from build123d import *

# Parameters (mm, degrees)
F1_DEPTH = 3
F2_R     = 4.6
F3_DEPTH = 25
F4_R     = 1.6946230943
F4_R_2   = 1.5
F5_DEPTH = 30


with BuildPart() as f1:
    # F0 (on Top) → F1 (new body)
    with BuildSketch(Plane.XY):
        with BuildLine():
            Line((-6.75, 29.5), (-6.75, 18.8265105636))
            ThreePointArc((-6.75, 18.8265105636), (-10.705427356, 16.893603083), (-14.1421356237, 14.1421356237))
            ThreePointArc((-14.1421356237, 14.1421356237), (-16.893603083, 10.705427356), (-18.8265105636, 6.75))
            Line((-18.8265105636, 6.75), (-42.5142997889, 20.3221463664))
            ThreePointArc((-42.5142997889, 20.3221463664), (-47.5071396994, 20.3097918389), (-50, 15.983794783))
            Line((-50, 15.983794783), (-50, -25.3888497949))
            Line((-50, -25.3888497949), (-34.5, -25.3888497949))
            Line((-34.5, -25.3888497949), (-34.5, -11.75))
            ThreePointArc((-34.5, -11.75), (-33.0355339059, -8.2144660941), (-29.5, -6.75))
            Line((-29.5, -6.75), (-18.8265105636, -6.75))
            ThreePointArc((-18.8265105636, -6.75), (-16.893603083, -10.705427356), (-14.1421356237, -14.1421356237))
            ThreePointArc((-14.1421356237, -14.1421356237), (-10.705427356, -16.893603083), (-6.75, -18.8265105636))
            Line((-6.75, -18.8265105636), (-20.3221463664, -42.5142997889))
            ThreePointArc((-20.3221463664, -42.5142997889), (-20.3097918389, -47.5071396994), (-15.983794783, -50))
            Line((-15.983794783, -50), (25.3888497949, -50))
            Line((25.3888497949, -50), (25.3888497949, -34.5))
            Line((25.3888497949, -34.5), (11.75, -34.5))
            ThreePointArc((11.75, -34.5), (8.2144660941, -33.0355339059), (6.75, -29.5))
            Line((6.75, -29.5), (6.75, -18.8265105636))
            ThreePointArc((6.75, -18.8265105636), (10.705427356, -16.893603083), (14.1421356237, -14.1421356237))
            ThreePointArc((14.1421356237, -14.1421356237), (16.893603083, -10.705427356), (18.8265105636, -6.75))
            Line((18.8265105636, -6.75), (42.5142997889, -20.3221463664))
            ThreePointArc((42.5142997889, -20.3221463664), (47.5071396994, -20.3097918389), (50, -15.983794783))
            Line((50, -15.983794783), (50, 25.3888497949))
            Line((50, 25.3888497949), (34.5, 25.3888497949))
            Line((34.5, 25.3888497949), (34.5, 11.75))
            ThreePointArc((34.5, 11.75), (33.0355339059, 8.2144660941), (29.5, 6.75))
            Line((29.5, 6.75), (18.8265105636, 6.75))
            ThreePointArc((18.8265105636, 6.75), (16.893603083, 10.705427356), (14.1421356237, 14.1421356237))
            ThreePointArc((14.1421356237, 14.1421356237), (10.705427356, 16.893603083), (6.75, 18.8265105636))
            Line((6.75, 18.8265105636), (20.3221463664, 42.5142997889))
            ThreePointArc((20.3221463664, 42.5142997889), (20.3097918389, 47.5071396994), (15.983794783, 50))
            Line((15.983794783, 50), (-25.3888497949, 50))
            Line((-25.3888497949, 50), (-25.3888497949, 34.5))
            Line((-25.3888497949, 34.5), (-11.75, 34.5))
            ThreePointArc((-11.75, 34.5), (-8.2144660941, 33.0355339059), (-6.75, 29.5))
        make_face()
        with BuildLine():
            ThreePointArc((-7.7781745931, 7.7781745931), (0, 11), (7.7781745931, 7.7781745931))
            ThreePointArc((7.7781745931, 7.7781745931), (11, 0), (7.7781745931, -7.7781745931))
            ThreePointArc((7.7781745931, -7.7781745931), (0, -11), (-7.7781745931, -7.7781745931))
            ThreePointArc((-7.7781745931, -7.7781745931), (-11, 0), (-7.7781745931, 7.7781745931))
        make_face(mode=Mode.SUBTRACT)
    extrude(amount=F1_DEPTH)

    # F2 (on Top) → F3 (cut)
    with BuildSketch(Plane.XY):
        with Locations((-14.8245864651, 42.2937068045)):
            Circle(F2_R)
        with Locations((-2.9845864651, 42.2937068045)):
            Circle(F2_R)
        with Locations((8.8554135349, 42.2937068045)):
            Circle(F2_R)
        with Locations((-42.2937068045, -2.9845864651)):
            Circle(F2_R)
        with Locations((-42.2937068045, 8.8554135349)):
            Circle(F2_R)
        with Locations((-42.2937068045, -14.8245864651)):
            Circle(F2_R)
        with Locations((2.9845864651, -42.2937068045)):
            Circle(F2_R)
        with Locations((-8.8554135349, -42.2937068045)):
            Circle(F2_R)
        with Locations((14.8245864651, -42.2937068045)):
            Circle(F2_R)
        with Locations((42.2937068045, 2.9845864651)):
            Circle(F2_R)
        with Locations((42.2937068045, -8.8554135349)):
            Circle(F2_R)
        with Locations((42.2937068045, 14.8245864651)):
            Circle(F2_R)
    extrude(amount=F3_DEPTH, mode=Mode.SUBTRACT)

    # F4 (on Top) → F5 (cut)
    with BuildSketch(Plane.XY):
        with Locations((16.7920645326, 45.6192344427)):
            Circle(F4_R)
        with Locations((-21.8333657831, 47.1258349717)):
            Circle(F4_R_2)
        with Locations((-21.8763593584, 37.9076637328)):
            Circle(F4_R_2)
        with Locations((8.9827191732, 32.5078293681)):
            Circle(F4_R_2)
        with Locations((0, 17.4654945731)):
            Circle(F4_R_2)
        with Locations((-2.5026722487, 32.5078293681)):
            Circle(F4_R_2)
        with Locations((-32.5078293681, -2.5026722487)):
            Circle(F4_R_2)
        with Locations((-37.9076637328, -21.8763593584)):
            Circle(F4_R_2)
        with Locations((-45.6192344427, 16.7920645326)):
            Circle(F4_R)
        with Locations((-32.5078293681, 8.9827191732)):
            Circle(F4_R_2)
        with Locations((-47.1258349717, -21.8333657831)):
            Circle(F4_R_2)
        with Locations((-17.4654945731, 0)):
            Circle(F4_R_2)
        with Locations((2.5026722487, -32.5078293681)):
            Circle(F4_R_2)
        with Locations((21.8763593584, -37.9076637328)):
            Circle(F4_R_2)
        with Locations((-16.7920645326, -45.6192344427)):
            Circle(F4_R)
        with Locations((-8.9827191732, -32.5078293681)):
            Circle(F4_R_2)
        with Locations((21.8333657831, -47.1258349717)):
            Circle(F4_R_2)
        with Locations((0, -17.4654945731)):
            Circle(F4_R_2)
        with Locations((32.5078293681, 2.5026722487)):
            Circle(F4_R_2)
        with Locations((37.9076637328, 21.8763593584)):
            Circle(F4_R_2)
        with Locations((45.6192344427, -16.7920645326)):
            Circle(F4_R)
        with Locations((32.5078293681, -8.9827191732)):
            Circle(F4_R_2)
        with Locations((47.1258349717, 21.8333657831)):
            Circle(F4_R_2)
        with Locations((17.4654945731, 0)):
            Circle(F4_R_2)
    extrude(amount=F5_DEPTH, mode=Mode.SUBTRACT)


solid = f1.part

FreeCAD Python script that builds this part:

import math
import FreeCAD as App
import Part
import Sketcher
from FreeCAD import Vector
Q = App.Units.Quantity

doc = App.newDocument("Part")
body = doc.addObject("PartDesign::Body", "Body")

# Sketch on XY plane
sketch1 = doc.addObject("Sketcher::SketchObject", "Sketch")
body.addObject(sketch1)
sketch1.AttachmentSupport = (doc.XY_Plane, [""])
sketch1.MapMode = "FlatFace"
sketch1.addGeometry(Part.LineSegment(Vector(-7, 30, 0), Vector(-7, 19, 0)), False)
sketch1.addGeometry(Part.ArcOfCircle(Part.Circle(Vector(0, 0, 0), Vector(0, 0, 1), 20), math.radians(110), math.radians(135)), False)
sketch1.addGeometry(Part.ArcOfCircle(Part.Circle(Vector(0, 0, 0), Vector(0, 0, 1), 20), math.radians(135), math.radians(160)), False)
sketch1.addGeometry(Part.LineSegment(Vector(-19, 7, 0), Vector(-43, 20, 0)), False)
sketch1.addGeometry(Part.ArcOfCircle(Part.Circle(Vector(-45, 16, 0), Vector(0, 0, 1), 5), math.radians(60), math.radians(180)), False)
sketch1.addGeometry(Part.LineSegment(Vector(-50, 16, 0), Vector(-50, -25, 0)), False)
sketch1.addGeometry(Part.LineSegment(Vector(-50, -25, 0), Vector(-34, -25, 0)), False)
sketch1.addGeometry(Part.LineSegment(Vector(-34, -25, 0), Vector(-34, -12, 0)), False)
sketch1.addGeometry(Part.ArcOfCircle(Part.Circle(Vector(-30, -12, 0), Vector(0, 0, 1), 5), math.radians(90), math.radians(180)), False)
sketch1.addGeometry(Part.LineSegment(Vector(-30, -7, 0), Vector(-19, -7, 0)), False)
sketch1.addGeometry(Part.ArcOfCircle(Part.Circle(Vector(0, 0, 0), Vector(0, 0, 1), 20), math.radians(-160), math.radians(-135)), False)
sketch1.addGeometry(Part.ArcOfCircle(Part.Circle(Vector(0, 0, 0), Vector(0, 0, 1), 20), math.radians(-135), math.radians(-110)), False)
sketch1.addGeometry(Part.LineSegment(Vector(-7, -19, 0), Vector(-20, -43, 0)), False)
sketch1.addGeometry(Part.ArcOfCircle(Part.Circle(Vector(-16, -45, 0), Vector(0, 0, 1), 5), math.radians(150), math.radians(270)), False)
sketch1.addGeometry(Part.LineSegment(Vector(-16, -50, 0), Vector(25, -50, 0)), False)
sketch1.addGeometry(Part.LineSegment(Vector(25, -50, 0), Vector(25, -34, 0)), False)
sketch1.addGeometry(Part.LineSegment(Vector(25, -34, 0), Vector(12, -34, 0)), False)
sketch1.addGeometry(Part.ArcOfCircle(Part.Circle(Vector(12, -30, 0), Vector(0, 0, 1), 5), math.radians(180), math.radians(270)), False)
sketch1.addGeometry(Part.LineSegment(Vector(7, -30, 0), Vector(7, -19, 0)), False)
sketch1.addGeometry(Part.ArcOfCircle(Part.Circle(Vector(0, 0, 0), Vector(0, 0, 1), 20), math.radians(-70), math.radians(-45)), False)
sketch1.addGeometry(Part.ArcOfCircle(Part.Circle(Vector(0, 0, 0), Vector(0, 0, 1), 20), math.radians(-45), math.radians(-20)), False)
sketch1.addGeometry(Part.LineSegment(Vector(19, -7, 0), Vector(43, -20, 0)), False)
sketch1.addGeometry(Part.ArcOfCircle(Part.Circle(Vector(45, -16, 0), Vector(0, 0, 1), 5), math.radians(-120), math.radians(0)), False)
sketch1.addGeometry(Part.LineSegment(Vector(50, -16, 0), Vector(50, 25, 0)), False)
sketch1.addGeometry(Part.LineSegment(Vector(50, 25, 0), Vector(34, 25, 0)), False)
sketch1.addGeometry(Part.LineSegment(Vector(34, 25, 0), Vector(34, 12, 0)), False)
sketch1.addGeometry(Part.ArcOfCircle(Part.Circle(Vector(30, 12, 0), Vector(0, 0, 1), 5), math.radians(-90), math.radians(0)), False)
sketch1.addGeometry(Part.LineSegment(Vector(30, 7, 0), Vector(19, 7, 0)), False)
sketch1.addGeometry(Part.ArcOfCircle(Part.Circle(Vector(0, 0, 0), Vector(0, 0, 1), 20), math.radians(20), math.radians(45)), False)
sketch1.addGeometry(Part.ArcOfCircle(Part.Circle(Vector(0, 0, 0), Vector(0, 0, 1), 20), math.radians(45), math.radians(70)), False)
sketch1.addGeometry(Part.LineSegment(Vector(7, 19, 0), Vector(20, 43, 0)), False)
sketch1.addGeometry(Part.ArcOfCircle(Part.Circle(Vector(16, 45, 0), Vector(0, 0, 1), 5), math.radians(-30), math.radians(90)), False)
sketch1.addGeometry(Part.LineSegment(Vector(16, 50, 0), Vector(-25, 50, 0)), False)
sketch1.addGeometry(Part.LineSegment(Vector(-25, 50, 0), Vector(-25, 34, 0)), False)
sketch1.addGeometry(Part.LineSegment(Vector(-25, 34, 0), Vector(-12, 34, 0)), False)
sketch1.addGeometry(Part.ArcOfCircle(Part.Circle(Vector(-12, 30, 0), Vector(0, 0, 1), 5), math.radians(0), math.radians(90)), False)
sketch1.addGeometry(Part.ArcOfCircle(Part.Circle(Vector(0, 0, 0), Vector(0, 0, 1), 11), math.radians(135), math.radians(225)), False)
sketch1.addGeometry(Part.ArcOfCircle(Part.Circle(Vector(0, 0, 0), Vector(0, 0, 1), 11), math.radians(45), math.radians(135)), False)
sketch1.addGeometry(Part.ArcOfCircle(Part.Circle(Vector(0, 0, 0), Vector(0, 0, 1), 11), math.radians(-45), math.radians(45)), False)
sketch1.addGeometry(Part.ArcOfCircle(Part.Circle(Vector(0, 0, 0), Vector(0, 0, 1), 11), math.radians(-135), math.radians(-45)), False)
sketch1.addConstraint(Sketcher.Constraint("Coincident", 0, 2, 1, 1))
sketch1.addConstraint(Sketcher.Constraint("Tangent", 1, 2, 2, 1))
sketch1.addConstraint(Sketcher.Constraint("Coincident", 2, 2, 3, 1))
sketch1.addConstraint(Sketcher.Constraint("Tangent", 3, 2, 4, 1))
sketch1.addConstraint(Sketcher.Constraint("Tangent", 4, 2, 5, 1))
sketch1.addConstraint(Sketcher.Constraint("Coincident", 5, 2, 6, 1))
sketch1.addConstraint(Sketcher.Constraint("Coincident", 6, 2, 7, 1))
sketch1.addConstraint(Sketcher.Constraint("Tangent", 7, 2, 8, 2))
sketch1.addConstraint(Sketcher.Constraint("Tangent", 8, 1, 9, 1))
sketch1.addConstraint(Sketcher.Constraint("Coincident", 9, 2, 10, 1))
sketch1.addConstraint(Sketcher.Constraint("Tangent", 10, 2, 11, 1))
sketch1.addConstraint(Sketcher.Constraint("Coincident", 11, 2, 12, 1))
sketch1.addConstraint(Sketcher.Constraint("Tangent", 12, 2, 13, 1))
sketch1.addConstraint(Sketcher.Constraint("Tangent", 13, 2, 14, 1))
sketch1.addConstraint(Sketcher.Constraint("Coincident", 14, 2, 15, 1))
sketch1.addConstraint(Sketcher.Constraint("Coincident", 15, 2, 16, 1))
sketch1.addConstraint(Sketcher.Constraint("Tangent", 16, 2, 17, 2))
sketch1.addConstraint(Sketcher.Constraint("Tangent", 17, 1, 18, 1))
sketch1.addConstraint(Sketcher.Constraint("Coincident", 18, 2, 19, 1))
sketch1.addConstraint(Sketcher.Constraint("Tangent", 19, 2, 20, 1))
sketch1.addConstraint(Sketcher.Constraint("Coincident", 20, 2, 21, 1))
sketch1.addConstraint(Sketcher.Constraint("Tangent", 21, 2, 22, 1))
sketch1.addConstraint(Sketcher.Constraint("Tangent", 22, 2, 23, 1))
sketch1.addConstraint(Sketcher.Constraint("Coincident", 23, 2, 24, 1))
sketch1.addConstraint(Sketcher.Constraint("Coincident", 24, 2, 25, 1))
sketch1.addConstraint(Sketcher.Constraint("Tangent", 25, 2, 26, 2))
sketch1.addConstraint(Sketcher.Constraint("Tangent", 26, 1, 27, 1))
sketch1.addConstraint(Sketcher.Constraint("Coincident", 27, 2, 28, 1))
sketch1.addConstraint(Sketcher.Constraint("Tangent", 28, 2, 29, 1))
sketch1.addConstraint(Sketcher.Constraint("Coincident", 29, 2, 30, 1))
sketch1.addConstraint(Sketcher.Constraint("Tangent", 30, 2, 31, 1))
sketch1.addConstraint(Sketcher.Constraint("Tangent", 31, 2, 32, 1))
sketch1.addConstraint(Sketcher.Constraint("Coincident", 32, 2, 33, 1))
sketch1.addConstraint(Sketcher.Constraint("Coincident", 33, 2, 34, 1))
sketch1.addConstraint(Sketcher.Constraint("Tangent", 34, 2, 35, 2))
sketch1.addConstraint(Sketcher.Constraint("Tangent", 35, 1, 0, 1))
sketch1.addConstraint(Sketcher.Constraint("Tangent", 36, 1, 37, 2))
sketch1.addConstraint(Sketcher.Constraint("Tangent", 37, 1, 38, 2))
sketch1.addConstraint(Sketcher.Constraint("Tangent", 38, 1, 39, 2))
sketch1.addConstraint(Sketcher.Constraint("Tangent", 39, 1, 36, 2))
sketch1.addConstraint(Sketcher.Constraint("Vertical", 0))
sketch1.addConstraint(Sketcher.Constraint("Vertical", 5))
sketch1.addConstraint(Sketcher.Constraint("Horizontal", 6))
sketch1.addConstraint(Sketcher.Constraint("Vertical", 7))
sketch1.addConstraint(Sketcher.Constraint("Horizontal", 9))
sketch1.addConstraint(Sketcher.Constraint("Horizontal", 14))
sketch1.addConstraint(Sketcher.Constraint("Vertical", 15))
sketch1.addConstraint(Sketcher.Constraint("Horizontal", 16))
sketch1.addConstraint(Sketcher.Constraint("Vertical", 18))
sketch1.addConstraint(Sketcher.Constraint("Vertical", 23))
sketch1.addConstraint(Sketcher.Constraint("Horizontal", 24))
sketch1.addConstraint(Sketcher.Constraint("Vertical", 25))
sketch1.addConstraint(Sketcher.Constraint("Horizontal", 27))
sketch1.addConstraint(Sketcher.Constraint("Horizontal", 32))
sketch1.addConstraint(Sketcher.Constraint("Vertical", 33))
sketch1.addConstraint(Sketcher.Constraint("Horizontal", 34))
sketch1.addConstraint(Sketcher.Constraint("Coincident", 1, 3, -1, 1))
sketch1.addConstraint(Sketcher.Constraint("Coincident", 10, 3, -1, 1))
sketch1.addConstraint(Sketcher.Constraint("Coincident", 19, 3, -1, 1))
sketch1.addConstraint(Sketcher.Constraint("Coincident", 28, 3, -1, 1))
sketch1.addConstraint(Sketcher.Constraint("Coincident", 36, 3, -1, 1))
sketch1.addConstraint(Sketcher.Constraint("Equal", 1, 2))
sketch1.addConstraint(Sketcher.Constraint("Equal", 4, 8))
sketch1.addConstraint(Sketcher.Constraint("Equal", 2, 10))
sketch1.addConstraint(Sketcher.Constraint("Equal", 10, 11))
sketch1.addConstraint(Sketcher.Constraint("Equal", 8, 13))
sketch1.addConstraint(Sketcher.Constraint("Equal", 13, 17))
sketch1.addConstraint(Sketcher.Constraint("Equal", 11, 19))
sketch1.addConstraint(Sketcher.Constraint("Equal", 19, 20))
sketch1.addConstraint(Sketcher.Constraint("Equal", 17, 22))
sketch1.addConstraint(Sketcher.Constraint("Equal", 22, 26))
sketch1.addConstraint(Sketcher.Constraint("Equal", 20, 28))
sketch1.addConstraint(Sketcher.Constraint("Equal", 28, 29))
sketch1.addConstraint(Sketcher.Constraint("Equal", 26, 31))
sketch1.addConstraint(Sketcher.Constraint("Equal", 31, 35))
sketch1.addConstraint(Sketcher.Constraint("Equal", 36, 37))
sketch1.addConstraint(Sketcher.Constraint("Symmetric", 4, 3, 22, 3, -1, 1))
sketch1.addConstraint(Sketcher.Constraint("Symmetric", 8, 3, 26, 3, -1, 1))
sketch1.addConstraint(Sketcher.Constraint("Symmetric", 13, 3, 31, 3, -1, 1))
sketch1.addConstraint(Sketcher.Constraint("Symmetric", 17, 3, 35, 3, -1, 1))
sketch1.addConstraint(Sketcher.Constraint("Perpendicular", 3, 12))
sketch1.addConstraint(Sketcher.Constraint("Perpendicular", 12, 21))
sketch1.addConstraint(Sketcher.Constraint("Perpendicular", 21, 30))
sketch1.addConstraint(Sketcher.Constraint("Horizontal", 11, 2, 18, 2))
sketch1.addConstraint(Sketcher.Constraint("Horizontal", 10, 2, 19, 2))
sketch1.addConstraint(Sketcher.Constraint("Horizontal", 9, 2, 20, 2))
sketch1.addConstraint(Sketcher.Constraint("Horizontal", 1, 2, 28, 2))
sketch1.addConstraint(Sketcher.Constraint("Horizontal", 36, 1, 37, 1))
sketch1.addConstraint(Sketcher.Constraint("Horizontal", 38, 1, 39, 1))
sketch1.addConstraint(Sketcher.Constraint("Vertical", 1, 2, 10, 2))
sketch1.addConstraint(Sketcher.Constraint("Vertical", 37, 1, 38, 1))
sketch1.addConstraint(Sketcher.Constraint("Equal", 14, 32))
sketch1.addConstraint(Sketcher.Constraint("Equal", 27, 0))
sketch1.addConstraint(Sketcher.Constraint("Equal", 32, 5))
sketch1.addConstraint(Sketcher.Constraint("Equal", 34, 7))
sketch1.addConstraint(Sketcher.Constraint("Equal", 24, 15))
sketch1.addConstraint(Sketcher.Constraint("Equal", 5, 23))
sketch1.addConstraint(Sketcher.Constraint("Radius", 1, Q("20 mm")))
sketch1.addConstraint(Sketcher.Constraint("Radius", 4, Q("5 mm")))
sketch1.addConstraint(Sketcher.Constraint("Radius", 36, Q("11 mm")))
sketch1.addConstraint(Sketcher.Constraint("DistanceX", 6, 1, 6, 2, Q("15.5 mm")))
sketch1.addConstraint(Sketcher.Constraint("DistanceX", 4, 3, -1, 1, Q("45 mm")))
sketch1.addConstraint(Sketcher.Constraint("DistanceY", 7, 2, 2, 2, Q("18.5 mm")))
sketch1.addConstraint(Sketcher.Constraint("DistanceX", 16, 2, 16, 1, Q("13.63885 mm")))
sketch1.addConstraint(Sketcher.Constraint("DistanceX", 3, 2, -1, 1, Q("42.5143 mm")))
sketch1.addConstraint(Sketcher.Constraint("DistanceY", 1, 2, 3, 2, Q("6.180011 mm")))
sketch1.addConstraint(Sketcher.Constraint("DistanceX", 1, 2, 36, 1, Q("6.363961 mm")))
pad1 = doc.addObject("PartDesign::Pad", "Pad")
body.addObject(pad1)
pad1.Profile = sketch1
pad1.Length = 3

# Sketch on XY plane
sketch2 = doc.addObject("Sketcher::SketchObject", "Sketch001")
body.addObject(sketch2)
sketch2.AttachmentSupport = (doc.XY_Plane, [""])
sketch2.MapMode = "FlatFace"
sketch2.addGeometry(Part.Circle(Vector(-14.8, 42.3, 0), Vector(0, 0, 1), 4.6), False)
sketch2.addGeometry(Part.Circle(Vector(-3, 42.3, 0), Vector(0, 0, 1), 4.6), False)
sketch2.addGeometry(Part.Circle(Vector(8.9, 42.3, 0), Vector(0, 0, 1), 4.6), False)
sketch2.addGeometry(Part.Circle(Vector(-42.3, -3, 0), Vector(0, 0, 1), 4.6), False)
sketch2.addGeometry(Part.Circle(Vector(-42.3, 8.9, 0), Vector(0, 0, 1), 4.6), False)
sketch2.addGeometry(Part.Circle(Vector(-42.3, -14.8, 0), Vector(0, 0, 1), 4.6), False)
sketch2.addGeometry(Part.Circle(Vector(3, -42.3, 0), Vector(0, 0, 1), 4.6), False)
sketch2.addGeometry(Part.Circle(Vector(-8.9, -42.3, 0), Vector(0, 0, 1), 4.6), False)
sketch2.addGeometry(Part.Circle(Vector(14.8, -42.3, 0), Vector(0, 0, 1), 4.6), False)
sketch2.addGeometry(Part.Circle(Vector(42.3, 3, 0), Vector(0, 0, 1), 4.6), False)
sketch2.addGeometry(Part.Circle(Vector(42.3, -8.9, 0), Vector(0, 0, 1), 4.6), False)
sketch2.addGeometry(Part.Circle(Vector(42.3, 14.8, 0), Vector(0, 0, 1), 4.6), False)
sketch2.addConstraint(Sketcher.Constraint("Equal", 0, 1))
sketch2.addConstraint(Sketcher.Constraint("Equal", 1, 2))
sketch2.addConstraint(Sketcher.Constraint("Equal", 2, 3))
sketch2.addConstraint(Sketcher.Constraint("Equal", 3, 4))
sketch2.addConstraint(Sketcher.Constraint("Equal", 4, 5))
sketch2.addConstraint(Sketcher.Constraint("Equal", 5, 6))
sketch2.addConstraint(Sketcher.Constraint("Equal", 6, 7))
sketch2.addConstraint(Sketcher.Constraint("Equal", 7, 8))
sketch2.addConstraint(Sketcher.Constraint("Equal", 8, 9))
sketch2.addConstraint(Sketcher.Constraint("Equal", 9, 10))
sketch2.addConstraint(Sketcher.Constraint("Equal", 10, 11))
sketch2.addConstraint(Sketcher.Constraint("Symmetric", 1, 3, 6, 3, -1, 1))
sketch2.addConstraint(Sketcher.Constraint("Symmetric", 2, 3, 7, 3, -1, 1))
sketch2.addConstraint(Sketcher.Constraint("Symmetric", 0, 3, 8, 3, -1, 1))
sketch2.addConstraint(Sketcher.Constraint("Symmetric", 3, 3, 9, 3, -1, 1))
sketch2.addConstraint(Sketcher.Constraint("Symmetric", 4, 3, 10, 3, -1, 1))
sketch2.addConstraint(Sketcher.Constraint("Symmetric", 5, 3, 11, 3, -1, 1))
sketch2.addConstraint(Sketcher.Constraint("Horizontal", 0, 3, 1, 3))
sketch2.addConstraint(Sketcher.Constraint("Horizontal", 1, 3, 2, 3))
sketch2.addConstraint(Sketcher.Constraint("Vertical", 3, 3, 4, 3))
sketch2.addConstraint(Sketcher.Constraint("Vertical", 4, 3, 5, 3))
sketch2.addConstraint(Sketcher.Constraint("Diameter", 0, Q("9.2 mm")))
sketch2.addConstraint(Sketcher.Constraint("DistanceX", 0, 3, 1, 3, Q("11.84 mm")))
sketch2.addConstraint(Sketcher.Constraint("DistanceX", 1, 3, 2, 3, Q("11.84 mm")))
sketch2.addConstraint(Sketcher.Constraint("DistanceY", 3, 3, 4, 3, Q("11.84 mm")))
sketch2.addConstraint(Sketcher.Constraint("DistanceY", 5, 3, 3, 3, Q("11.84 mm")))
sketch2.addConstraint(Sketcher.Constraint("DistanceX", 3, 3, 0, 3, Q("27.46912 mm")))
sketch2.addConstraint(Sketcher.Constraint("DistanceY", 6, 3, 5, 3, Q("27.46912 mm")))
sketch2.addConstraint(Sketcher.Constraint("DistanceX", 0, 3, -1, 1, Q("14.824586 mm")))
sketch2.addConstraint(Sketcher.Constraint("DistanceY", -1, 1, 0, 3, Q("42.293707 mm")))
pocket1 = doc.addObject("PartDesign::Pocket", "Pocket")
body.addObject(pocket1)
pocket1.Profile = sketch2
pocket1.Length = 25
pocket1.Reversed = True

# Sketch on XY plane
sketch3 = doc.addObject("Sketcher::SketchObject", "Sketch002")
body.addObject(sketch3)
sketch3.AttachmentSupport = (doc.XY_Plane, [""])
sketch3.MapMode = "FlatFace"
sketch3.addGeometry(Part.Circle(Vector(16.8, 45.6, 0), Vector(0, 0, 1), 1.7), False)
sketch3.addGeometry(Part.Circle(Vector(-21.8, 47.1, 0), Vector(0, 0, 1), 1.5), False)
sketch3.addGeometry(Part.Circle(Vector(-21.9, 37.9, 0), Vector(0, 0, 1), 1.5), False)
sketch3.addGeometry(Part.Circle(Vector(9, 32.5, 0), Vector(0, 0, 1), 1.5), False)
sketch3.addGeometry(Part.Circle(Vector(0, 17.5, 0), Vector(0, 0, 1), 1.5), False)
sketch3.addGeometry(Part.Circle(Vector(-2.5, 32.5, 0), Vector(0, 0, 1), 1.5), False)
sketch3.addGeometry(Part.Circle(Vector(-32.5, -2.5, 0), Vector(0, 0, 1), 1.5), False)
sketch3.addGeometry(Part.Circle(Vector(-37.9, -21.9, 0), Vector(0, 0, 1), 1.5), False)
sketch3.addGeometry(Part.Circle(Vector(-45.6, 16.8, 0), Vector(0, 0, 1), 1.7), False)
sketch3.addGeometry(Part.Circle(Vector(-32.5, 9, 0), Vector(0, 0, 1), 1.5), False)
sketch3.addGeometry(Part.Circle(Vector(-47.1, -21.8, 0), Vector(0, 0, 1), 1.5), False)
sketch3.addGeometry(Part.Circle(Vector(-17.5, 0, 0), Vector(0, 0, 1), 1.5), False)
sketch3.addGeometry(Part.Circle(Vector(2.5, -32.5, 0), Vector(0, 0, 1), 1.5), False)
sketch3.addGeometry(Part.Circle(Vector(21.9, -37.9, 0), Vector(0, 0, 1), 1.5), False)
sketch3.addGeometry(Part.Circle(Vector(-16.8, -45.6, 0), Vector(0, 0, 1), 1.7), False)
sketch3.addGeometry(Part.Circle(Vector(-9, -32.5, 0), Vector(0, 0, 1), 1.5), False)
sketch3.addGeometry(Part.Circle(Vector(21.8, -47.1, 0), Vector(0, 0, 1), 1.5), False)
sketch3.addGeometry(Part.Circle(Vector(0, -17.5, 0), Vector(0, 0, 1), 1.5), False)
sketch3.addGeometry(Part.Circle(Vector(32.5, 2.5, 0), Vector(0, 0, 1), 1.5), False)
sketch3.addGeometry(Part.Circle(Vector(37.9, 21.9, 0), Vector(0, 0, 1), 1.5), False)
sketch3.addGeometry(Part.Circle(Vector(45.6, -16.8, 0), Vector(0, 0, 1), 1.7), False)
sketch3.addGeometry(Part.Circle(Vector(32.5, -9, 0), Vector(0, 0, 1), 1.5), False)
sketch3.addGeometry(Part.Circle(Vector(47.1, 21.8, 0), Vector(0, 0, 1), 1.5), False)
sketch3.addGeometry(Part.Circle(Vector(17.5, 0, 0), Vector(0, 0, 1), 1.5), False)
sketch3.addConstraint(Sketcher.Constraint("Equal", 1, 2))
sketch3.addConstraint(Sketcher.Constraint("Equal", 2, 3))
sketch3.addConstraint(Sketcher.Constraint("Equal", 3, 4))
sketch3.addConstraint(Sketcher.Constraint("Equal", 4, 5))
sketch3.addConstraint(Sketcher.Constraint("Equal", 5, 6))
sketch3.addConstraint(Sketcher.Constraint("Equal", 6, 7))
sketch3.addConstraint(Sketcher.Constraint("Equal", 0, 8))
sketch3.addConstraint(Sketcher.Constraint("Equal", 7, 9))
sketch3.addConstraint(Sketcher.Constraint("Equal", 9, 10))
sketch3.addConstraint(Sketcher.Constraint("Equal", 10, 11))
sketch3.addConstraint(Sketcher.Constraint("Equal", 11, 12))
sketch3.addConstraint(Sketcher.Constraint("Equal", 12, 13))
sketch3.addConstraint(Sketcher.Constraint("Equal", 8, 14))
sketch3.addConstraint(Sketcher.Constraint("Equal", 13, 15))
sketch3.addConstraint(Sketcher.Constraint("Equal", 15, 16))
sketch3.addConstraint(Sketcher.Constraint("Equal", 16, 17))
sketch3.addConstraint(Sketcher.Constraint("Equal", 17, 18))
sketch3.addConstraint(Sketcher.Constraint("Equal", 18, 19))
sketch3.addConstraint(Sketcher.Constraint("Equal", 14, 20))
sketch3.addConstraint(Sketcher.Constraint("Equal", 19, 21))
sketch3.addConstraint(Sketcher.Constraint("Equal", 21, 22))
sketch3.addConstraint(Sketcher.Constraint("Equal", 22, 23))
sketch3.addConstraint(Sketcher.Constraint("Symmetric", 5, 3, 12, 3, -1, 1))
sketch3.addConstraint(Sketcher.Constraint("Symmetric", 2, 3, 13, 3, -1, 1))
sketch3.addConstraint(Sketcher.Constraint("Symmetric", 0, 3, 14, 3, -1, 1))
sketch3.addConstraint(Sketcher.Constraint("Symmetric", 3, 3, 15, 3, -1, 1))
sketch3.addConstraint(Sketcher.Constraint("Symmetric", 1, 3, 16, 3, -1, 1))
sketch3.addConstraint(Sketcher.Constraint("Symmetric", 4, 3, 17, 3, -1, 1))
sketch3.addConstraint(Sketcher.Constraint("Symmetric", 6, 3, 18, 3, -1, 1))
sketch3.addConstraint(Sketcher.Constraint("Symmetric", 7, 3, 19, 3, -1, 1))
sketch3.addConstraint(Sketcher.Constraint("Symmetric", 8, 3, 20, 3, -1, 1))
sketch3.addConstraint(Sketcher.Constraint("Symmetric", 9, 3, 21, 3, -1, 1))
sketch3.addConstraint(Sketcher.Constraint("Symmetric", 10, 3, 22, 3, -1, 1))
sketch3.addConstraint(Sketcher.Constraint("Symmetric", 11, 3, 23, 3, -1, 1))
sketch3.addConstraint(Sketcher.Constraint("PointOnObject", 4, 3, -2))
sketch3.addConstraint(Sketcher.Constraint("PointOnObject", 11, 3, -1))
sketch3.addConstraint(Sketcher.Constraint("Horizontal", 3, 3, 5, 3))
sketch3.addConstraint(Sketcher.Constraint("Vertical", 6, 3, 9, 3))
sketch3.addConstraint(Sketcher.Constraint("Diameter", 1, Q("3 mm")))
sketch3.addConstraint(Sketcher.Constraint("Diameter", 0, Q("3.389246 mm")))
sketch3.addConstraint(Sketcher.Constraint("DistanceY", 0, 3, 1, 3, Q("1.506601 mm")))
sketch3.addConstraint(Sketcher.Constraint("DistanceY", 6, 3, 5, 3, Q("35.010502 mm")))
sketch3.addConstraint(Sketcher.Constraint("DistanceY", 8, 3, 2, 3, Q("21.115599 mm")))
sketch3.addConstraint(Sketcher.Constraint("DistanceX", 10, 3, 8, 3, Q("1.506601 mm")))
sketch3.addConstraint(Sketcher.Constraint("DistanceX", 6, 3, 12, 3, Q("35.010502 mm")))
sketch3.addConstraint(Sketcher.Constraint("DistanceX", 7, 3, 14, 3, Q("21.115599 mm")))
sketch3.addConstraint(Sketcher.Constraint("DistanceX", 2, 3, -1, 1, Q("21.876359 mm")))
sketch3.addConstraint(Sketcher.Constraint("DistanceX", -1, 1, 3, 3, Q("8.982719 mm")))
sketch3.addConstraint(Sketcher.Constraint("DistanceY", -1, 1, 3, 3, Q("32.507829 mm")))
sketch3.addConstraint(Sketcher.Constraint("DistanceX", 6, 3, -1, 1, Q("32.507829 mm")))
sketch3.addConstraint(Sketcher.Constraint("DistanceY", 7, 3, -1, 1, Q("21.876359 mm")))
sketch3.addConstraint(Sketcher.Constraint("DistanceY", -1, 1, 9, 3, Q("8.982719 mm")))
sketch3.addConstraint(Sketcher.Constraint("DistanceX", 1, 3, 0, 3, Q("38.62543 mm")))
sketch3.addConstraint(Sketcher.Constraint("DistanceY", 2, 3, 1, 3, Q("9.218171 mm")))
sketch3.addConstraint(Sketcher.Constraint("DistanceY", 4, 3, 2, 3, Q("20.442169 mm")))
sketch3.addConstraint(Sketcher.Constraint("DistanceX", 7, 3, 5, 3, Q("35.404991 mm")))
sketch3.addConstraint(Sketcher.Constraint("DistanceX", 8, 3, 1, 3, Q("23.785869 mm")))
sketch3.addConstraint(Sketcher.Constraint("DistanceY", 10, 3, 8, 3, Q("38.62543 mm")))
sketch3.addConstraint(Sketcher.Constraint("DistanceX", 7, 3, 11, 3, Q("20.442169 mm")))
sketch3.addConstraint(Sketcher.Constraint("DistanceY", 13, 3, 4, 3, Q("55.373158 mm")))
pocket2 = doc.addObject("PartDesign::Pocket", "Pocket001")
body.addObject(pocket2)
pocket2.Profile = sketch3
pocket2.Length = 30
pocket2.Reversed = True

doc.recompute()
